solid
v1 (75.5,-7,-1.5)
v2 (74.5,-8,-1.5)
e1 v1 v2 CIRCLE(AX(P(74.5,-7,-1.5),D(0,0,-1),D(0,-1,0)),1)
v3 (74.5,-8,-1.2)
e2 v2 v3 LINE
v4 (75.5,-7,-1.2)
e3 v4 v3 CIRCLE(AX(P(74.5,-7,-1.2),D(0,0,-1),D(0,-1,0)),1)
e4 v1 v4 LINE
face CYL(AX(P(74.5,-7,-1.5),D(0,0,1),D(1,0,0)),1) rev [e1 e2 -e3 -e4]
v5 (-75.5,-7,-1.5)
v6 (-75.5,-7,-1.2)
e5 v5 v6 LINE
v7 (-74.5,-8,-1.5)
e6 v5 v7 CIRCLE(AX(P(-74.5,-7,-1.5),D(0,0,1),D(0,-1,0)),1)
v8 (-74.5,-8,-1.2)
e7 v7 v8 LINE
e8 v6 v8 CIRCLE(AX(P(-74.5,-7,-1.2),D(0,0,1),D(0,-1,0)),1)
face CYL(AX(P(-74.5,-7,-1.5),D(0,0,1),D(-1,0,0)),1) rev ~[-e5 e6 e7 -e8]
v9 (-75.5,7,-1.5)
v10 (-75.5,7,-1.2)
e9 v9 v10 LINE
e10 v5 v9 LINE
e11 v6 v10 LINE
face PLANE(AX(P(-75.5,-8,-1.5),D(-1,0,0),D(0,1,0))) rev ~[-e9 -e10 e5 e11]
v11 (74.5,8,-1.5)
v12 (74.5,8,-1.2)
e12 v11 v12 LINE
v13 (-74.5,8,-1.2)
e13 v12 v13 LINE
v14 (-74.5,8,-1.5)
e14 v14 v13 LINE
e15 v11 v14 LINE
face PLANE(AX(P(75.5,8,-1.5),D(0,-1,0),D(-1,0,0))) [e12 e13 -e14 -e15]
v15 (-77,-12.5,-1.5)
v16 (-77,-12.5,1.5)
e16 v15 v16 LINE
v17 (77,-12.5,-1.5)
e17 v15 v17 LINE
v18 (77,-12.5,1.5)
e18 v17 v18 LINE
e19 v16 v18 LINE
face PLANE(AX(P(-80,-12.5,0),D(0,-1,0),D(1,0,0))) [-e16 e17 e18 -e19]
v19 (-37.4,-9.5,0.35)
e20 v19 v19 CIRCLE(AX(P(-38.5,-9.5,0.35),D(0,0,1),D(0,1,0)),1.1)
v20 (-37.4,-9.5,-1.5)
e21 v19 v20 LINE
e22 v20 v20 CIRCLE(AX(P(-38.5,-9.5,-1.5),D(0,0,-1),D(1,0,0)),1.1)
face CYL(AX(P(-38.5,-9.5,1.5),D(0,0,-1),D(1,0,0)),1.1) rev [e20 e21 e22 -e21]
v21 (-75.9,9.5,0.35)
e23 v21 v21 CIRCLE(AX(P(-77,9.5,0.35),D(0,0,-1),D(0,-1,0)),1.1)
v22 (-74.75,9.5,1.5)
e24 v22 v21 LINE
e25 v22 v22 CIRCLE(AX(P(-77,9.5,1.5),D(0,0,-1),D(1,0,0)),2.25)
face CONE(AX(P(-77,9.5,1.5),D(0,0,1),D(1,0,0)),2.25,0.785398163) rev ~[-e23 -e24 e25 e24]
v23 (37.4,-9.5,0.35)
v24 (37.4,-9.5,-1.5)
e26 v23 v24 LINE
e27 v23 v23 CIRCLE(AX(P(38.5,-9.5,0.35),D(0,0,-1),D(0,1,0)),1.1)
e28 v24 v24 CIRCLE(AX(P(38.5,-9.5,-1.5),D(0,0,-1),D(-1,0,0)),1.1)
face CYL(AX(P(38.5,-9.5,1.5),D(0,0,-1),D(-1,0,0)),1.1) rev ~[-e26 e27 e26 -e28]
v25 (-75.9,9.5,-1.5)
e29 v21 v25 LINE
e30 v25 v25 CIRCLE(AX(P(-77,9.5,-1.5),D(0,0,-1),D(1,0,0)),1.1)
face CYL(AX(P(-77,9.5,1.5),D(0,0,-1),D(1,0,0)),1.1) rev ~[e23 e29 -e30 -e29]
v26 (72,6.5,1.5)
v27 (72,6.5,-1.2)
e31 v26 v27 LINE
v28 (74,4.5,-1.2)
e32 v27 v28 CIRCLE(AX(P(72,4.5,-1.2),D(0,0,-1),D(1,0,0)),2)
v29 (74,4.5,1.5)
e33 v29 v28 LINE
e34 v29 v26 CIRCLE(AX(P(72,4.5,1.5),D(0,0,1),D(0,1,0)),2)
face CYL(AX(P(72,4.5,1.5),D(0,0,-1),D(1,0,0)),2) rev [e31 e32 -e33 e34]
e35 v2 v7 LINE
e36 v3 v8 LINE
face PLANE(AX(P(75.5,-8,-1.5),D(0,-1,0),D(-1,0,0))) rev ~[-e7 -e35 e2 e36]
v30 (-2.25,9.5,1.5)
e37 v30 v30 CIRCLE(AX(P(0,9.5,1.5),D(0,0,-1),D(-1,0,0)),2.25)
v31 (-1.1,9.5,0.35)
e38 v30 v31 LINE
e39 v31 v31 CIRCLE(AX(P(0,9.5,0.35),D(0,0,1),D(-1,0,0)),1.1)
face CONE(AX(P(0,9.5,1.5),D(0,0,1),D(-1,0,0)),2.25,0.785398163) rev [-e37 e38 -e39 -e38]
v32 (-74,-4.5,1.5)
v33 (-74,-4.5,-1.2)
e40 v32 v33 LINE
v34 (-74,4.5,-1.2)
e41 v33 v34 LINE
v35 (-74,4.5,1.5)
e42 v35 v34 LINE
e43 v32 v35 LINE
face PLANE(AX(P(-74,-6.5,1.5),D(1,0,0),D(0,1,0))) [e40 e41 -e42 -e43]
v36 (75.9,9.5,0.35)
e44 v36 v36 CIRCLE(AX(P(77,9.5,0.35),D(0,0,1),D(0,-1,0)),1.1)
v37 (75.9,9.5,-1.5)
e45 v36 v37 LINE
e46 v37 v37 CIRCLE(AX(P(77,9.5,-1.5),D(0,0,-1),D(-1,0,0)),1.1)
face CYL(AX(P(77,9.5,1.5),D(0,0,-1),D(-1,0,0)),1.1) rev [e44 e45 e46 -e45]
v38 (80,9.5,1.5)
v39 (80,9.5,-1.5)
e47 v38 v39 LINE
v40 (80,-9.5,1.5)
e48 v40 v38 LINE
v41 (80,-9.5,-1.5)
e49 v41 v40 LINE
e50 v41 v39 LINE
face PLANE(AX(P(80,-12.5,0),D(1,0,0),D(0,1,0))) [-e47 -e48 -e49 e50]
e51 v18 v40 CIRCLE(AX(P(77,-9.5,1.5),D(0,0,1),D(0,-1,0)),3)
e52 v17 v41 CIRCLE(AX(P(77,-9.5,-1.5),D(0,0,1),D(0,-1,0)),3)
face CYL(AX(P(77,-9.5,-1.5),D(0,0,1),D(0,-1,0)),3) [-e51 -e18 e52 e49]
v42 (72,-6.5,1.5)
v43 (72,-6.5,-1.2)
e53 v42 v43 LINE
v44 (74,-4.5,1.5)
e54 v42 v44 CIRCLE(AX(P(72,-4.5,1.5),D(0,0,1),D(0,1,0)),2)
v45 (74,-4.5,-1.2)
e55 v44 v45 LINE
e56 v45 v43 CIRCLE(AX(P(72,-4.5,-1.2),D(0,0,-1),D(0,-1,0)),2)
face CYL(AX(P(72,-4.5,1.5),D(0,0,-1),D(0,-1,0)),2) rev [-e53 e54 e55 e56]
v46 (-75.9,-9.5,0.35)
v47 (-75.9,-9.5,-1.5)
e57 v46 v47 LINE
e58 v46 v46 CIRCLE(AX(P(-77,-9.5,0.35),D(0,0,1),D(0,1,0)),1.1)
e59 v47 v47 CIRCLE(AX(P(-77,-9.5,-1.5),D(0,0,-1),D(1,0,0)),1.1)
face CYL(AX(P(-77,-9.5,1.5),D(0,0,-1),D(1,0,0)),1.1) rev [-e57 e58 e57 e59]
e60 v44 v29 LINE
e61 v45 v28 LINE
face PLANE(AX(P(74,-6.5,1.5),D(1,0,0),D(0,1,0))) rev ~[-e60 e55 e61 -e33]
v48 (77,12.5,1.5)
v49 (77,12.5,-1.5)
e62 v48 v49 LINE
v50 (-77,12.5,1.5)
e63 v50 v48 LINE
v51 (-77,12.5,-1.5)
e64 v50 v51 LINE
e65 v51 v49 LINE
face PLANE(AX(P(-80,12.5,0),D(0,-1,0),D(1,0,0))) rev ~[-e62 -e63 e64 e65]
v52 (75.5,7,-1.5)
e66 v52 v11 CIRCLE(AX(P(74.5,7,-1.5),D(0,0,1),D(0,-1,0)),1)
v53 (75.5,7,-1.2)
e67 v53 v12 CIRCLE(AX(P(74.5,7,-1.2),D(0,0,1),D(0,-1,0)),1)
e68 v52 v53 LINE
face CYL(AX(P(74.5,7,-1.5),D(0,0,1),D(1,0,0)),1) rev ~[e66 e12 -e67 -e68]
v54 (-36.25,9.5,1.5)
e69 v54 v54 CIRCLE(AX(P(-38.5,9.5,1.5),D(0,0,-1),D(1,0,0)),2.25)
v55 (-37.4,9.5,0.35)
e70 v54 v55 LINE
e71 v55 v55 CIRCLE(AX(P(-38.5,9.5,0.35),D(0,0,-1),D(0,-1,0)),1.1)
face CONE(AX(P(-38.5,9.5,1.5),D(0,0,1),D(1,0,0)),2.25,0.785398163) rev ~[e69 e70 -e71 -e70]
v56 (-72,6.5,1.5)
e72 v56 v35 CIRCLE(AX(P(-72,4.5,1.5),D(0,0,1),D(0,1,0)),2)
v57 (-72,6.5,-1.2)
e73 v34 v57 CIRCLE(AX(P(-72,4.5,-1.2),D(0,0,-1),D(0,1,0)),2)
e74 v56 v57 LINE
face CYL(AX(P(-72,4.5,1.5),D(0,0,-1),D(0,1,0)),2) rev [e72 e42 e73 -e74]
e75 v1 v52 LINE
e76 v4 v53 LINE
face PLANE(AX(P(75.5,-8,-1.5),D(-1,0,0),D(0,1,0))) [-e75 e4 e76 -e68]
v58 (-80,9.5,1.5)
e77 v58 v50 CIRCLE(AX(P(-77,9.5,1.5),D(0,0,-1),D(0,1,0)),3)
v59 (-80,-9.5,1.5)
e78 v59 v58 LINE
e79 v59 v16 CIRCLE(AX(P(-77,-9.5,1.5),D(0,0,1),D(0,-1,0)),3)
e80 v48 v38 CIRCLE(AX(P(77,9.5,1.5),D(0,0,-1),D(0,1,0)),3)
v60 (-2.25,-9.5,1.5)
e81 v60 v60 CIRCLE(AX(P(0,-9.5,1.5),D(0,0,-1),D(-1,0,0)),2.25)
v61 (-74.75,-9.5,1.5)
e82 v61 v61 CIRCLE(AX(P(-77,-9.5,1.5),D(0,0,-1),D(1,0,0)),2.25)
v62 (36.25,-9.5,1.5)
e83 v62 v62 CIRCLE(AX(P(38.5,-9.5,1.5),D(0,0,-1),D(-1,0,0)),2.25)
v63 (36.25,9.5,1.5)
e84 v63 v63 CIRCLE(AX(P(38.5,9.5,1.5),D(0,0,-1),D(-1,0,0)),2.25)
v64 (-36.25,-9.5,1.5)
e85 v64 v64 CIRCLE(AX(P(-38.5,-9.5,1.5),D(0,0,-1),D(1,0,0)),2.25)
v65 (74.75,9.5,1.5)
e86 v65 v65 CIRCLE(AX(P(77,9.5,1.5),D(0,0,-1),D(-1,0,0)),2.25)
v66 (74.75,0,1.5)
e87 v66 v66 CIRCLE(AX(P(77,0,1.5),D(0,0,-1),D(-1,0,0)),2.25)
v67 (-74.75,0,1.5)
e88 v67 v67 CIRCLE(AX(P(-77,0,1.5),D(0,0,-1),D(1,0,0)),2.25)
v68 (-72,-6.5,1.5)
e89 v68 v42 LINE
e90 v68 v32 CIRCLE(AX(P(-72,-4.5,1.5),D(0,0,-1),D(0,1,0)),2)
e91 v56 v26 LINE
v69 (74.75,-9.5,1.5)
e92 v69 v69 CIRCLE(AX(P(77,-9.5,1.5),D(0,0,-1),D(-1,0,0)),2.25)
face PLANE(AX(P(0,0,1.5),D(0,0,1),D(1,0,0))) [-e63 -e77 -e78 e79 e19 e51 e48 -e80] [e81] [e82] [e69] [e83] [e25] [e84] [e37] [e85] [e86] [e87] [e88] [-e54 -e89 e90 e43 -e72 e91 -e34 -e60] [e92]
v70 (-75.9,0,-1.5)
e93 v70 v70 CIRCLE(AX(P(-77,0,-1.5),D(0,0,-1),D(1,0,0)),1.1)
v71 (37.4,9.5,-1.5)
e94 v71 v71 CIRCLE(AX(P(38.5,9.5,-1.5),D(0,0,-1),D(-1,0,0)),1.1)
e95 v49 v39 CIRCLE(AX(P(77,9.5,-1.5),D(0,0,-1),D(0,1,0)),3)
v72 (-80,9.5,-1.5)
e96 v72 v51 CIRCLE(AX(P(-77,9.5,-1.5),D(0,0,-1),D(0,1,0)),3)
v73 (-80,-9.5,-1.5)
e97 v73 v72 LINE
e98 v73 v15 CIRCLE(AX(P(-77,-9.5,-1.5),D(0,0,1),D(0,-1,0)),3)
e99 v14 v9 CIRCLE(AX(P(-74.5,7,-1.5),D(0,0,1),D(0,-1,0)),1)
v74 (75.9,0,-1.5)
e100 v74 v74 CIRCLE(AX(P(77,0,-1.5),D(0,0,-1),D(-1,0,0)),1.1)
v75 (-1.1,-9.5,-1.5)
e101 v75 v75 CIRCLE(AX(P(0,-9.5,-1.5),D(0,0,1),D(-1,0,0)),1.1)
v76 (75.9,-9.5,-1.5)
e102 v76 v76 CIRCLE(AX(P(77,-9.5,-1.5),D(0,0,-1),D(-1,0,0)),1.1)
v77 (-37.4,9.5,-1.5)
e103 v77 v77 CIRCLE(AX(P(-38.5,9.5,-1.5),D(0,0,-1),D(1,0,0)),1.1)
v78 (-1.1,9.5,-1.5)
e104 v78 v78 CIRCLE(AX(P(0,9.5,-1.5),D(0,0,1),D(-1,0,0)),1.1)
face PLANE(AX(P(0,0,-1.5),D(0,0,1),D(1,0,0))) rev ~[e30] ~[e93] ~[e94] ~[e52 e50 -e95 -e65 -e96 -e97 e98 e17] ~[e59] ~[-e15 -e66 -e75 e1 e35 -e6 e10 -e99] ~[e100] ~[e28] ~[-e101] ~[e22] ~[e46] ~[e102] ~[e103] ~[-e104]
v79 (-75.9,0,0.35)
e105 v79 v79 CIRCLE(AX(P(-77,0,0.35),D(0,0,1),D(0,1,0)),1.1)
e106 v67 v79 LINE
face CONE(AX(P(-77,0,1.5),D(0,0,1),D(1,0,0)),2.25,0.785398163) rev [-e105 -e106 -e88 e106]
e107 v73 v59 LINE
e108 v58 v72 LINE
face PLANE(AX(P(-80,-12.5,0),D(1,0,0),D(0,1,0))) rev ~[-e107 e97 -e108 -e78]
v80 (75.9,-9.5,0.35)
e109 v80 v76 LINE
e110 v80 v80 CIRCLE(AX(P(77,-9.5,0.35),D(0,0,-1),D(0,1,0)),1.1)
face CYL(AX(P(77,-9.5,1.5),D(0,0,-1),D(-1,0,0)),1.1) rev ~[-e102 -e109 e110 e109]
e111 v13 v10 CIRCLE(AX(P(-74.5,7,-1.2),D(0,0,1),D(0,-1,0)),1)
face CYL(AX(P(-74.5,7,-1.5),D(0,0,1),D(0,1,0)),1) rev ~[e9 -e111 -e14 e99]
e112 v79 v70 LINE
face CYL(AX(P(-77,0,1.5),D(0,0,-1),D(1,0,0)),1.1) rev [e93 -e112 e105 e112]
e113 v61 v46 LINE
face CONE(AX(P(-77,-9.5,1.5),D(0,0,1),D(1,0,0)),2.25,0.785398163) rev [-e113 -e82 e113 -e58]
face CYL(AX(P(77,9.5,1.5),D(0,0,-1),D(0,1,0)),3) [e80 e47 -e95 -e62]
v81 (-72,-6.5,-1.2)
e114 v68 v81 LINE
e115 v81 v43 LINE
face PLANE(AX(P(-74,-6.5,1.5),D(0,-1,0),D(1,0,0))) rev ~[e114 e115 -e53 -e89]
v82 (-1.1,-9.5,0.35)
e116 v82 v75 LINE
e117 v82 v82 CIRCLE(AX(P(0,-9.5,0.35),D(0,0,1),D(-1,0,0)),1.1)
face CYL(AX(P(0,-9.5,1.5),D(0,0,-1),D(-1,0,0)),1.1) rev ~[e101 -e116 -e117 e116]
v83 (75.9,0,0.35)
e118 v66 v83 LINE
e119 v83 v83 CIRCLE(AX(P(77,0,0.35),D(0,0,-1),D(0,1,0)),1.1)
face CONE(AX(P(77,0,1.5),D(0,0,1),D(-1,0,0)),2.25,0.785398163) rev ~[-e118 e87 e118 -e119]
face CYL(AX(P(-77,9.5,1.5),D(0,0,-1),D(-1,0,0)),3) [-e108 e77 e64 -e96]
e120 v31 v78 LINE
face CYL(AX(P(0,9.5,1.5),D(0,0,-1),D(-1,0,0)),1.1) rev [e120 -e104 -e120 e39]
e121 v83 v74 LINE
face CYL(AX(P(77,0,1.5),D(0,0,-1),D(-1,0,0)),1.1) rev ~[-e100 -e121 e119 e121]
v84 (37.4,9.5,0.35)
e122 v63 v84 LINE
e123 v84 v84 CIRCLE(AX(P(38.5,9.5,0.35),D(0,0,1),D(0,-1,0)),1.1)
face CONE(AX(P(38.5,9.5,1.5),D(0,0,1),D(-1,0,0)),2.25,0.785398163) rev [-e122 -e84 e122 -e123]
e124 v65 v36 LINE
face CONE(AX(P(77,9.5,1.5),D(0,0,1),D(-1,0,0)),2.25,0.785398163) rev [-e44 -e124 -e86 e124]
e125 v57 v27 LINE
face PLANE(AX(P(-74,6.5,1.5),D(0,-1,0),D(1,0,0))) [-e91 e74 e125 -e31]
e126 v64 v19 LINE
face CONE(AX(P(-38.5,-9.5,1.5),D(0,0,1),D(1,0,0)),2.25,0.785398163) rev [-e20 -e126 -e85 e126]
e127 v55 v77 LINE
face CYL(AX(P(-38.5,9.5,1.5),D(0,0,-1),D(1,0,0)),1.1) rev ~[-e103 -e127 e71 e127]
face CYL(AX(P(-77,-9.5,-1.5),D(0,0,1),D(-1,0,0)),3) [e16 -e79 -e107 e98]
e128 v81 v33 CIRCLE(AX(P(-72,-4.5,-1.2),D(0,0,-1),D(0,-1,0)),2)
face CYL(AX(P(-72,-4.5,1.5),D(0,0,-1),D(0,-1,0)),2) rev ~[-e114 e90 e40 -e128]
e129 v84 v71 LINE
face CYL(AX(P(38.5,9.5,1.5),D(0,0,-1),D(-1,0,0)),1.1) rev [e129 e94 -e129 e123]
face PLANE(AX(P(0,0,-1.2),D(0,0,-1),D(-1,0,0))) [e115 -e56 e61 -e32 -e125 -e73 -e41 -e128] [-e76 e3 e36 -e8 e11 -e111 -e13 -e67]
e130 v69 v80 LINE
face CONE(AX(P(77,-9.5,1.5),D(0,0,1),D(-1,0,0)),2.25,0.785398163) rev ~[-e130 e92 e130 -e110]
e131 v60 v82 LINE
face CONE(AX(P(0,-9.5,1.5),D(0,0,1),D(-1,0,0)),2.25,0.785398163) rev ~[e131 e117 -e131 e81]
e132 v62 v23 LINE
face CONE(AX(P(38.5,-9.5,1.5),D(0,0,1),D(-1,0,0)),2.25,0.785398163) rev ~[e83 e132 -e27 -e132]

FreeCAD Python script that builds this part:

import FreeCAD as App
import Part
import Sketcher
from FreeCAD import Vector
Q = App.Units.Quantity


def edges_at(feature, points):
    """Names of the edges that pass closest to the given points."""
    edges = feature.Shape.Edges
    near = lambda p: min(range(len(edges)), key=lambda i: edges[i].distToShape(Part.Vertex(*p))[0])
    return sorted({f"Edge{near(p) + 1}" for p in points})


def add_polygon(sketch, points):
    """Adds a closed chain of lines whose ends are joined by coincident constraints."""
    first, n = sketch.GeometryCount, len(points)
    for a, b in zip(points, points[1:] + points[:1]):
        sketch.addGeometry(Part.LineSegment(App.Vector(*a, 0), App.Vector(*b, 0)), False)
    for i in range(n):
        sketch.addConstraint(Sketcher.Constraint("Coincident", first + i, 2, first + (i + 1) % n, 1))

doc = App.newDocument("Part")
body = doc.addObject("PartDesign::Body", "Body")

# Sketch on XY plane
sketch1 = body.newObject("Sketcher::SketchObject", "Sketch")
sketch1.AttachmentSupport = (doc.getObject("XY_Plane"), [""])
sketch1.MapMode = "FlatFace"
add_polygon(sketch1, [(-80, 12), (-80, -12), (80, -12), (80, 12)])  # lines 0-3
sketch1.addConstraint(Sketcher.Constraint("Vertical", 0))
sketch1.addConstraint(Sketcher.Constraint("Horizontal", 1))
sketch1.addConstraint(Sketcher.Constraint("Vertical", 2))
sketch1.addConstraint(Sketcher.Constraint("Horizontal", 3))
sketch1.addConstraint(Sketcher.Constraint("Symmetric", 0, 2, 2, 2, -1, 1))
sketch1.addConstraint(Sketcher.Constraint("DistanceX", 1, 1, 1, 2, Q("160 mm")))
sketch1.addConstraint(Sketcher.Constraint("DistanceY", 0, 2, 0, 1, Q("25 mm")))
pad1 = body.newObject("PartDesign::Pad", "Pad")
pad1.Profile = sketch1
pad1.Length = 3
pad1.Midplane = True

# Sketch on XY plane
sketch2 = body.newObject("Sketcher::SketchObject", "Sketch001")
sketch2.AttachmentSupport = (doc.getObject("XY_Plane"), [""])
sketch2.MapMode = "FlatFace"
sketch2.AttachmentOffset = App.Placement(Vector(0, 0, 1.5), App.Rotation())
add_polygon(sketch2, [(-74, 6), (-74, -6), (74, -6), (74, 6)])  # lines 0-3
sketch2.addConstraint(Sketcher.Constraint("Vertical", 0))
sketch2.addConstraint(Sketcher.Constraint("Horizontal", 1))
sketch2.addConstraint(Sketcher.Constraint("Vertical", 2))
sketch2.addConstraint(Sketcher.Constraint("Horizontal", 3))
sketch2.addConstraint(Sketcher.Constraint("Symmetric", 0, 2, 2, 2, -1, 1))
sketch2.addConstraint(Sketcher.Constraint("DistanceX", 1, 1, 1, 2, Q("148 mm")))
sketch2.addConstraint(Sketcher.Constraint("DistanceY", 0, 2, 0, 1, Q("13 mm")))
pocket1 = body.newObject("PartDesign::Pocket", "Pocket")
pocket1.Profile = sketch2
pocket1.Type = "ThroughAll"
doc.recompute()

fillet = body.newObject("PartDesign::Fillet", "Fillet")
fillet.Base = (pocket1, edges_at(pocket1, [
    (-74, -6.5, 0),
    (-74, 6.5, 0),
    (74, 6.5, 0),
    (74, -6.5, 0),
]))
fillet.Radius = 2
doc.recompute()

fillet2 = body.newObject("PartDesign::Fillet", "Fillet001")
fillet2.Base = (fillet, edges_at(fillet, [
    (80, -12.5, 0),
    (-80, -12.5, 0),
    (-80, 12.5, 0),
    (80, 12.5, 0),
]))
fillet2.Radius = 3

# Sketch on XY plane
sketch3 = body.newObject("Sketcher::SketchObject", "Sketch002")
sketch3.AttachmentSupport = (doc.getObject("XY_Plane"), [""])
sketch3.MapMode = "FlatFace"
sketch3.AttachmentOffset = App.Placement(Vector(0, 0, 1.5), App.Rotation())
sketch3.addGeometry(Part.Circle(Vector(0, -9.5, 0), Vector(0, 0, 1), 1.1), False)
sketch3.addGeometry(Part.Circle(Vector(38.5, -9.5, 0), Vector(0, 0, 1), 1.1), False)
sketch3.addGeometry(Part.Circle(Vector(77, -9.5, 0), Vector(0, 0, 1), 1.1), False)
sketch3.addGeometry(Part.Circle(Vector(77, 0, 0), Vector(0, 0, 1), 1.1), False)
sketch3.addConstraint(Sketcher.Constraint("Equal", 0, 1))
sketch3.addConstraint(Sketcher.Constraint("Equal", 1, 2))
sketch3.addConstraint(Sketcher.Constraint("Equal", 2, 3))
sketch3.addConstraint(Sketcher.Constraint("PointOnObject", 0, 3, -2))
sketch3.addConstraint(Sketcher.Constraint("PointOnObject", 3, 3, -1))
sketch3.addConstraint(Sketcher.Constraint("Horizontal", 0, 3, 1, 3))
sketch3.addConstraint(Sketcher.Constraint("Horizontal", 1, 3, 2, 3))
sketch3.addConstraint(Sketcher.Constraint("Vertical", 2, 3, 3, 3))
sketch3.addConstraint(Sketcher.Constraint("Diameter", 0, Q("2.2 mm")))
sketch3.addConstraint(Sketcher.Constraint("DistanceX", -1, 1, 2, 3, Q("77 mm")))
sketch3.addConstraint(Sketcher.Constraint("DistanceY", 0, 3, -1, 1, Q("9.5 mm")))
sketch3.addConstraint(Sketcher.Constraint("DistanceX", -1, 1, 1, 3, Q("38.5 mm")))
doc.recompute()
hole = body.newObject("PartDesign::Hole", "Hole")
hole.Profile = sketch3
hole.ThreadType = "None"
hole.Diameter = 2.2
hole.DepthType = "ThroughAll"
hole.HoleCutType = "Countersink"
hole.HoleCutDiameter = 4.5
hole.HoleCutCountersinkAngle = 90
doc.recompute()

mirrored = body.newObject("PartDesign::Mirrored", "Mirrored")
mirrored.Originals = [hole]
mirrored.MirrorPlane = (doc.getObject("XZ_Plane"), [""])
body.Tip = mirrored
doc.recompute()

mirrored2 = body.newObject("PartDesign::Mirrored", "Mirrored001")
mirrored2.Originals = [hole]
mirrored2.MirrorPlane = (doc.getObject("YZ_Plane"), [""])
body.Tip = mirrored2

# Sketch on XY plane
sketch4 = body.newObject("Sketcher::SketchObject", "Sketch003")
sketch4.AttachmentSupport = (doc.getObject("XY_Plane"), [""])
sketch4.MapMode = "FlatFace"
sketch4.AttachmentOffset = App.Placement(Vector(0, 0, 1.5), App.Rotation())
sketch4.addGeometry(Part.Circle(Vector(0, 9.5, 0), Vector(0, 0, 1), 1.1), False)
sketch4.addGeometry(Part.Circle(Vector(-38.5, 9.5, 0), Vector(0, 0, 1), 1.1), False)
sketch4.addGeometry(Part.Circle(Vector(-77, 9.5, 0), Vector(0, 0, 1), 1.1), False)
sketch4.addGeometry(Part.Circle(Vector(-77, 0, 0), Vector(0, 0, 1), 1.1), False)
sketch4.addConstraint(Sketcher.Constraint("Equal", 0, 1))
sketch4.addConstraint(Sketcher.Constraint("Equal", 1, 2))
sketch4.addConstraint(Sketcher.Constraint("Equal", 2, 3))
sketch4.addConstraint(Sketcher.Constraint("PointOnObject", 0, 3, -2))
sketch4.addConstraint(Sketcher.Constraint("PointOnObject", 3, 3, -1))
sketch4.addConstraint(Sketcher.Constraint("Horizontal", 0, 3, 1, 3))
sketch4.addConstraint(Sketcher.Constraint("Horizontal", 1, 3, 2, 3))
sketch4.addConstraint(Sketcher.Constraint("Vertical", 2, 3, 3, 3))
sketch4.addConstraint(Sketcher.Constraint("Diameter", 0, Q("2.2 mm")))
sketch4.addConstraint(Sketcher.Constraint("DistanceX", 2, 3, -1, 1, Q("77 mm")))
sketch4.addConstraint(Sketcher.Constraint("DistanceY", -1, 1, 0, 3, Q("9.5 mm")))
sketch4.addConstraint(Sketcher.Constraint("DistanceX", 1, 3, -1, 1, Q("38.5 mm")))
doc.recompute()
hole2 = body.newObject("PartDesign::Hole", "Hole001")
hole2.Profile = sketch4
hole2.ThreadType = "None"
hole2.Diameter = 2.2
hole2.DepthType = "ThroughAll"
hole2.HoleCutType = "Countersink"
hole2.HoleCutDiameter = 4.5
hole2.HoleCutCountersinkAngle = 90

# Sketch on XY plane
sketch5 = body.newObject("Sketcher::SketchObject", "Sketch004")
sketch5.AttachmentSupport = (doc.getObject("XY_Plane"), [""])
sketch5.MapMode = "FlatFace"
sketch5.AttachmentOffset = App.Placement(Vector(0, 0, -1.5), App.Rotation())
add_polygon(sketch5, [(76, 8), (76, -8), (-76, -8), (-76, 8)])  # lines 0-3
sketch5.addConstraint(Sketcher.Constraint("Vertical", 0))
sketch5.addConstraint(Sketcher.Constraint("Horizontal", 1))
sketch5.addConstraint(Sketcher.Constraint("Vertical", 2))
sketch5.addConstraint(Sketcher.Constraint("Horizontal", 3))
sketch5.addConstraint(Sketcher.Constraint("Symmetric", 0, 2, 2, 2, -1, 1))
sketch5.addConstraint(Sketcher.Constraint("DistanceX", 1, 2, 1, 1, Q("151 mm")))
sketch5.addConstraint(Sketcher.Constraint("DistanceY", 0, 2, 0, 1, Q("16 mm")))
pocket2 = body.newObject("PartDesign::Pocket", "Pocket001")
pocket2.Profile = sketch5
pocket2.Length = 0.3
pocket2.Reversed = True
doc.recompute()

fillet3 = body.newObject("PartDesign::Fillet", "Fillet002")
fillet3.Base = (pocket2, edges_at(pocket2, [
    (75.5, -8, -1.35),
    (75.5, 8, -1.35),
    (-75.5, 8, -1.35),
    (-75.5, -8, -1.35),
]))
fillet3.Radius = 1

doc.recompute()
